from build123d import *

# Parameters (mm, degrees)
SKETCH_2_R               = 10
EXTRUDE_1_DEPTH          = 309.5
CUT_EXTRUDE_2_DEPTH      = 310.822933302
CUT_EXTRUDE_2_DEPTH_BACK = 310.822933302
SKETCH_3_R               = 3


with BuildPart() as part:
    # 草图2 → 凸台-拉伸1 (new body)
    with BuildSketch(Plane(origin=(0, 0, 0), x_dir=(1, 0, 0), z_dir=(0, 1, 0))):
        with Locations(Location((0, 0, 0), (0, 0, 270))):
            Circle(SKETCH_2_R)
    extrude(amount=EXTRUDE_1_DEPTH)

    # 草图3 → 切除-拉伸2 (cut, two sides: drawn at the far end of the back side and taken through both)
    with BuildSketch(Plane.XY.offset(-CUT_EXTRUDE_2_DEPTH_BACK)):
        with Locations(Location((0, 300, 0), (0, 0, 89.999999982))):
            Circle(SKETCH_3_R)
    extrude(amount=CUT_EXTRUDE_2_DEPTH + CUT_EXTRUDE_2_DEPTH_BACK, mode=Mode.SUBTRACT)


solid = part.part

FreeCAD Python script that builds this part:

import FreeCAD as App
import Part
import Sketcher

V = App.Vector
Q = App.Units.Quantity

doc = App.newDocument("Part")
body = doc.addObject("PartDesign::Body", "Body")

sketch1 = doc.addObject("Sketcher::SketchObject", "Sketch")
body.addObject(sketch1)
sketch1.AttachmentSupport = (doc.XZ_Plane, [""])
sketch1.MapMode = "FlatFace"
sketch1.addGeometry(Part.Circle(V(0, 0, 0), V(0, 0, 1), 10), False)
sketch1.addConstraint([
    Sketcher.Constraint("Coincident", 0, 3, -1, 1),
    Sketcher.Constraint("Diameter", 0, Q("20 mm")),
])
pad1 = doc.addObject("PartDesign::Pad", "Pad")
body.addObject(pad1)
pad1.Profile = sketch1
pad1.Length = 309.5
pad1.Reversed = True

sketch2 = doc.addObject("Sketcher::SketchObject", "Sketch001")
body.addObject(sketch2)
sketch2.AttachmentSupport = (doc.XY_Plane, [""])
sketch2.MapMode = "FlatFace"
sketch2.addGeometry(Part.Circle(V(0, 300, 0), V(0, 0, 1), 3), False)
sketch2.addConstraint([
    Sketcher.Constraint("PointOnObject", 0, 3, -2),
    Sketcher.Constraint("Diameter", 0, Q("6 mm")),
    Sketcher.Constraint("DistanceY", -1, 1, 0, 3, Q("300 mm")),
])
pocket1 = doc.addObject("PartDesign::Pocket", "Pocket")
body.addObject(pocket1)
pocket1.Profile = sketch2
pocket1.Type = "ThroughAll"
pocket1.Midplane = True

doc.recompute()
